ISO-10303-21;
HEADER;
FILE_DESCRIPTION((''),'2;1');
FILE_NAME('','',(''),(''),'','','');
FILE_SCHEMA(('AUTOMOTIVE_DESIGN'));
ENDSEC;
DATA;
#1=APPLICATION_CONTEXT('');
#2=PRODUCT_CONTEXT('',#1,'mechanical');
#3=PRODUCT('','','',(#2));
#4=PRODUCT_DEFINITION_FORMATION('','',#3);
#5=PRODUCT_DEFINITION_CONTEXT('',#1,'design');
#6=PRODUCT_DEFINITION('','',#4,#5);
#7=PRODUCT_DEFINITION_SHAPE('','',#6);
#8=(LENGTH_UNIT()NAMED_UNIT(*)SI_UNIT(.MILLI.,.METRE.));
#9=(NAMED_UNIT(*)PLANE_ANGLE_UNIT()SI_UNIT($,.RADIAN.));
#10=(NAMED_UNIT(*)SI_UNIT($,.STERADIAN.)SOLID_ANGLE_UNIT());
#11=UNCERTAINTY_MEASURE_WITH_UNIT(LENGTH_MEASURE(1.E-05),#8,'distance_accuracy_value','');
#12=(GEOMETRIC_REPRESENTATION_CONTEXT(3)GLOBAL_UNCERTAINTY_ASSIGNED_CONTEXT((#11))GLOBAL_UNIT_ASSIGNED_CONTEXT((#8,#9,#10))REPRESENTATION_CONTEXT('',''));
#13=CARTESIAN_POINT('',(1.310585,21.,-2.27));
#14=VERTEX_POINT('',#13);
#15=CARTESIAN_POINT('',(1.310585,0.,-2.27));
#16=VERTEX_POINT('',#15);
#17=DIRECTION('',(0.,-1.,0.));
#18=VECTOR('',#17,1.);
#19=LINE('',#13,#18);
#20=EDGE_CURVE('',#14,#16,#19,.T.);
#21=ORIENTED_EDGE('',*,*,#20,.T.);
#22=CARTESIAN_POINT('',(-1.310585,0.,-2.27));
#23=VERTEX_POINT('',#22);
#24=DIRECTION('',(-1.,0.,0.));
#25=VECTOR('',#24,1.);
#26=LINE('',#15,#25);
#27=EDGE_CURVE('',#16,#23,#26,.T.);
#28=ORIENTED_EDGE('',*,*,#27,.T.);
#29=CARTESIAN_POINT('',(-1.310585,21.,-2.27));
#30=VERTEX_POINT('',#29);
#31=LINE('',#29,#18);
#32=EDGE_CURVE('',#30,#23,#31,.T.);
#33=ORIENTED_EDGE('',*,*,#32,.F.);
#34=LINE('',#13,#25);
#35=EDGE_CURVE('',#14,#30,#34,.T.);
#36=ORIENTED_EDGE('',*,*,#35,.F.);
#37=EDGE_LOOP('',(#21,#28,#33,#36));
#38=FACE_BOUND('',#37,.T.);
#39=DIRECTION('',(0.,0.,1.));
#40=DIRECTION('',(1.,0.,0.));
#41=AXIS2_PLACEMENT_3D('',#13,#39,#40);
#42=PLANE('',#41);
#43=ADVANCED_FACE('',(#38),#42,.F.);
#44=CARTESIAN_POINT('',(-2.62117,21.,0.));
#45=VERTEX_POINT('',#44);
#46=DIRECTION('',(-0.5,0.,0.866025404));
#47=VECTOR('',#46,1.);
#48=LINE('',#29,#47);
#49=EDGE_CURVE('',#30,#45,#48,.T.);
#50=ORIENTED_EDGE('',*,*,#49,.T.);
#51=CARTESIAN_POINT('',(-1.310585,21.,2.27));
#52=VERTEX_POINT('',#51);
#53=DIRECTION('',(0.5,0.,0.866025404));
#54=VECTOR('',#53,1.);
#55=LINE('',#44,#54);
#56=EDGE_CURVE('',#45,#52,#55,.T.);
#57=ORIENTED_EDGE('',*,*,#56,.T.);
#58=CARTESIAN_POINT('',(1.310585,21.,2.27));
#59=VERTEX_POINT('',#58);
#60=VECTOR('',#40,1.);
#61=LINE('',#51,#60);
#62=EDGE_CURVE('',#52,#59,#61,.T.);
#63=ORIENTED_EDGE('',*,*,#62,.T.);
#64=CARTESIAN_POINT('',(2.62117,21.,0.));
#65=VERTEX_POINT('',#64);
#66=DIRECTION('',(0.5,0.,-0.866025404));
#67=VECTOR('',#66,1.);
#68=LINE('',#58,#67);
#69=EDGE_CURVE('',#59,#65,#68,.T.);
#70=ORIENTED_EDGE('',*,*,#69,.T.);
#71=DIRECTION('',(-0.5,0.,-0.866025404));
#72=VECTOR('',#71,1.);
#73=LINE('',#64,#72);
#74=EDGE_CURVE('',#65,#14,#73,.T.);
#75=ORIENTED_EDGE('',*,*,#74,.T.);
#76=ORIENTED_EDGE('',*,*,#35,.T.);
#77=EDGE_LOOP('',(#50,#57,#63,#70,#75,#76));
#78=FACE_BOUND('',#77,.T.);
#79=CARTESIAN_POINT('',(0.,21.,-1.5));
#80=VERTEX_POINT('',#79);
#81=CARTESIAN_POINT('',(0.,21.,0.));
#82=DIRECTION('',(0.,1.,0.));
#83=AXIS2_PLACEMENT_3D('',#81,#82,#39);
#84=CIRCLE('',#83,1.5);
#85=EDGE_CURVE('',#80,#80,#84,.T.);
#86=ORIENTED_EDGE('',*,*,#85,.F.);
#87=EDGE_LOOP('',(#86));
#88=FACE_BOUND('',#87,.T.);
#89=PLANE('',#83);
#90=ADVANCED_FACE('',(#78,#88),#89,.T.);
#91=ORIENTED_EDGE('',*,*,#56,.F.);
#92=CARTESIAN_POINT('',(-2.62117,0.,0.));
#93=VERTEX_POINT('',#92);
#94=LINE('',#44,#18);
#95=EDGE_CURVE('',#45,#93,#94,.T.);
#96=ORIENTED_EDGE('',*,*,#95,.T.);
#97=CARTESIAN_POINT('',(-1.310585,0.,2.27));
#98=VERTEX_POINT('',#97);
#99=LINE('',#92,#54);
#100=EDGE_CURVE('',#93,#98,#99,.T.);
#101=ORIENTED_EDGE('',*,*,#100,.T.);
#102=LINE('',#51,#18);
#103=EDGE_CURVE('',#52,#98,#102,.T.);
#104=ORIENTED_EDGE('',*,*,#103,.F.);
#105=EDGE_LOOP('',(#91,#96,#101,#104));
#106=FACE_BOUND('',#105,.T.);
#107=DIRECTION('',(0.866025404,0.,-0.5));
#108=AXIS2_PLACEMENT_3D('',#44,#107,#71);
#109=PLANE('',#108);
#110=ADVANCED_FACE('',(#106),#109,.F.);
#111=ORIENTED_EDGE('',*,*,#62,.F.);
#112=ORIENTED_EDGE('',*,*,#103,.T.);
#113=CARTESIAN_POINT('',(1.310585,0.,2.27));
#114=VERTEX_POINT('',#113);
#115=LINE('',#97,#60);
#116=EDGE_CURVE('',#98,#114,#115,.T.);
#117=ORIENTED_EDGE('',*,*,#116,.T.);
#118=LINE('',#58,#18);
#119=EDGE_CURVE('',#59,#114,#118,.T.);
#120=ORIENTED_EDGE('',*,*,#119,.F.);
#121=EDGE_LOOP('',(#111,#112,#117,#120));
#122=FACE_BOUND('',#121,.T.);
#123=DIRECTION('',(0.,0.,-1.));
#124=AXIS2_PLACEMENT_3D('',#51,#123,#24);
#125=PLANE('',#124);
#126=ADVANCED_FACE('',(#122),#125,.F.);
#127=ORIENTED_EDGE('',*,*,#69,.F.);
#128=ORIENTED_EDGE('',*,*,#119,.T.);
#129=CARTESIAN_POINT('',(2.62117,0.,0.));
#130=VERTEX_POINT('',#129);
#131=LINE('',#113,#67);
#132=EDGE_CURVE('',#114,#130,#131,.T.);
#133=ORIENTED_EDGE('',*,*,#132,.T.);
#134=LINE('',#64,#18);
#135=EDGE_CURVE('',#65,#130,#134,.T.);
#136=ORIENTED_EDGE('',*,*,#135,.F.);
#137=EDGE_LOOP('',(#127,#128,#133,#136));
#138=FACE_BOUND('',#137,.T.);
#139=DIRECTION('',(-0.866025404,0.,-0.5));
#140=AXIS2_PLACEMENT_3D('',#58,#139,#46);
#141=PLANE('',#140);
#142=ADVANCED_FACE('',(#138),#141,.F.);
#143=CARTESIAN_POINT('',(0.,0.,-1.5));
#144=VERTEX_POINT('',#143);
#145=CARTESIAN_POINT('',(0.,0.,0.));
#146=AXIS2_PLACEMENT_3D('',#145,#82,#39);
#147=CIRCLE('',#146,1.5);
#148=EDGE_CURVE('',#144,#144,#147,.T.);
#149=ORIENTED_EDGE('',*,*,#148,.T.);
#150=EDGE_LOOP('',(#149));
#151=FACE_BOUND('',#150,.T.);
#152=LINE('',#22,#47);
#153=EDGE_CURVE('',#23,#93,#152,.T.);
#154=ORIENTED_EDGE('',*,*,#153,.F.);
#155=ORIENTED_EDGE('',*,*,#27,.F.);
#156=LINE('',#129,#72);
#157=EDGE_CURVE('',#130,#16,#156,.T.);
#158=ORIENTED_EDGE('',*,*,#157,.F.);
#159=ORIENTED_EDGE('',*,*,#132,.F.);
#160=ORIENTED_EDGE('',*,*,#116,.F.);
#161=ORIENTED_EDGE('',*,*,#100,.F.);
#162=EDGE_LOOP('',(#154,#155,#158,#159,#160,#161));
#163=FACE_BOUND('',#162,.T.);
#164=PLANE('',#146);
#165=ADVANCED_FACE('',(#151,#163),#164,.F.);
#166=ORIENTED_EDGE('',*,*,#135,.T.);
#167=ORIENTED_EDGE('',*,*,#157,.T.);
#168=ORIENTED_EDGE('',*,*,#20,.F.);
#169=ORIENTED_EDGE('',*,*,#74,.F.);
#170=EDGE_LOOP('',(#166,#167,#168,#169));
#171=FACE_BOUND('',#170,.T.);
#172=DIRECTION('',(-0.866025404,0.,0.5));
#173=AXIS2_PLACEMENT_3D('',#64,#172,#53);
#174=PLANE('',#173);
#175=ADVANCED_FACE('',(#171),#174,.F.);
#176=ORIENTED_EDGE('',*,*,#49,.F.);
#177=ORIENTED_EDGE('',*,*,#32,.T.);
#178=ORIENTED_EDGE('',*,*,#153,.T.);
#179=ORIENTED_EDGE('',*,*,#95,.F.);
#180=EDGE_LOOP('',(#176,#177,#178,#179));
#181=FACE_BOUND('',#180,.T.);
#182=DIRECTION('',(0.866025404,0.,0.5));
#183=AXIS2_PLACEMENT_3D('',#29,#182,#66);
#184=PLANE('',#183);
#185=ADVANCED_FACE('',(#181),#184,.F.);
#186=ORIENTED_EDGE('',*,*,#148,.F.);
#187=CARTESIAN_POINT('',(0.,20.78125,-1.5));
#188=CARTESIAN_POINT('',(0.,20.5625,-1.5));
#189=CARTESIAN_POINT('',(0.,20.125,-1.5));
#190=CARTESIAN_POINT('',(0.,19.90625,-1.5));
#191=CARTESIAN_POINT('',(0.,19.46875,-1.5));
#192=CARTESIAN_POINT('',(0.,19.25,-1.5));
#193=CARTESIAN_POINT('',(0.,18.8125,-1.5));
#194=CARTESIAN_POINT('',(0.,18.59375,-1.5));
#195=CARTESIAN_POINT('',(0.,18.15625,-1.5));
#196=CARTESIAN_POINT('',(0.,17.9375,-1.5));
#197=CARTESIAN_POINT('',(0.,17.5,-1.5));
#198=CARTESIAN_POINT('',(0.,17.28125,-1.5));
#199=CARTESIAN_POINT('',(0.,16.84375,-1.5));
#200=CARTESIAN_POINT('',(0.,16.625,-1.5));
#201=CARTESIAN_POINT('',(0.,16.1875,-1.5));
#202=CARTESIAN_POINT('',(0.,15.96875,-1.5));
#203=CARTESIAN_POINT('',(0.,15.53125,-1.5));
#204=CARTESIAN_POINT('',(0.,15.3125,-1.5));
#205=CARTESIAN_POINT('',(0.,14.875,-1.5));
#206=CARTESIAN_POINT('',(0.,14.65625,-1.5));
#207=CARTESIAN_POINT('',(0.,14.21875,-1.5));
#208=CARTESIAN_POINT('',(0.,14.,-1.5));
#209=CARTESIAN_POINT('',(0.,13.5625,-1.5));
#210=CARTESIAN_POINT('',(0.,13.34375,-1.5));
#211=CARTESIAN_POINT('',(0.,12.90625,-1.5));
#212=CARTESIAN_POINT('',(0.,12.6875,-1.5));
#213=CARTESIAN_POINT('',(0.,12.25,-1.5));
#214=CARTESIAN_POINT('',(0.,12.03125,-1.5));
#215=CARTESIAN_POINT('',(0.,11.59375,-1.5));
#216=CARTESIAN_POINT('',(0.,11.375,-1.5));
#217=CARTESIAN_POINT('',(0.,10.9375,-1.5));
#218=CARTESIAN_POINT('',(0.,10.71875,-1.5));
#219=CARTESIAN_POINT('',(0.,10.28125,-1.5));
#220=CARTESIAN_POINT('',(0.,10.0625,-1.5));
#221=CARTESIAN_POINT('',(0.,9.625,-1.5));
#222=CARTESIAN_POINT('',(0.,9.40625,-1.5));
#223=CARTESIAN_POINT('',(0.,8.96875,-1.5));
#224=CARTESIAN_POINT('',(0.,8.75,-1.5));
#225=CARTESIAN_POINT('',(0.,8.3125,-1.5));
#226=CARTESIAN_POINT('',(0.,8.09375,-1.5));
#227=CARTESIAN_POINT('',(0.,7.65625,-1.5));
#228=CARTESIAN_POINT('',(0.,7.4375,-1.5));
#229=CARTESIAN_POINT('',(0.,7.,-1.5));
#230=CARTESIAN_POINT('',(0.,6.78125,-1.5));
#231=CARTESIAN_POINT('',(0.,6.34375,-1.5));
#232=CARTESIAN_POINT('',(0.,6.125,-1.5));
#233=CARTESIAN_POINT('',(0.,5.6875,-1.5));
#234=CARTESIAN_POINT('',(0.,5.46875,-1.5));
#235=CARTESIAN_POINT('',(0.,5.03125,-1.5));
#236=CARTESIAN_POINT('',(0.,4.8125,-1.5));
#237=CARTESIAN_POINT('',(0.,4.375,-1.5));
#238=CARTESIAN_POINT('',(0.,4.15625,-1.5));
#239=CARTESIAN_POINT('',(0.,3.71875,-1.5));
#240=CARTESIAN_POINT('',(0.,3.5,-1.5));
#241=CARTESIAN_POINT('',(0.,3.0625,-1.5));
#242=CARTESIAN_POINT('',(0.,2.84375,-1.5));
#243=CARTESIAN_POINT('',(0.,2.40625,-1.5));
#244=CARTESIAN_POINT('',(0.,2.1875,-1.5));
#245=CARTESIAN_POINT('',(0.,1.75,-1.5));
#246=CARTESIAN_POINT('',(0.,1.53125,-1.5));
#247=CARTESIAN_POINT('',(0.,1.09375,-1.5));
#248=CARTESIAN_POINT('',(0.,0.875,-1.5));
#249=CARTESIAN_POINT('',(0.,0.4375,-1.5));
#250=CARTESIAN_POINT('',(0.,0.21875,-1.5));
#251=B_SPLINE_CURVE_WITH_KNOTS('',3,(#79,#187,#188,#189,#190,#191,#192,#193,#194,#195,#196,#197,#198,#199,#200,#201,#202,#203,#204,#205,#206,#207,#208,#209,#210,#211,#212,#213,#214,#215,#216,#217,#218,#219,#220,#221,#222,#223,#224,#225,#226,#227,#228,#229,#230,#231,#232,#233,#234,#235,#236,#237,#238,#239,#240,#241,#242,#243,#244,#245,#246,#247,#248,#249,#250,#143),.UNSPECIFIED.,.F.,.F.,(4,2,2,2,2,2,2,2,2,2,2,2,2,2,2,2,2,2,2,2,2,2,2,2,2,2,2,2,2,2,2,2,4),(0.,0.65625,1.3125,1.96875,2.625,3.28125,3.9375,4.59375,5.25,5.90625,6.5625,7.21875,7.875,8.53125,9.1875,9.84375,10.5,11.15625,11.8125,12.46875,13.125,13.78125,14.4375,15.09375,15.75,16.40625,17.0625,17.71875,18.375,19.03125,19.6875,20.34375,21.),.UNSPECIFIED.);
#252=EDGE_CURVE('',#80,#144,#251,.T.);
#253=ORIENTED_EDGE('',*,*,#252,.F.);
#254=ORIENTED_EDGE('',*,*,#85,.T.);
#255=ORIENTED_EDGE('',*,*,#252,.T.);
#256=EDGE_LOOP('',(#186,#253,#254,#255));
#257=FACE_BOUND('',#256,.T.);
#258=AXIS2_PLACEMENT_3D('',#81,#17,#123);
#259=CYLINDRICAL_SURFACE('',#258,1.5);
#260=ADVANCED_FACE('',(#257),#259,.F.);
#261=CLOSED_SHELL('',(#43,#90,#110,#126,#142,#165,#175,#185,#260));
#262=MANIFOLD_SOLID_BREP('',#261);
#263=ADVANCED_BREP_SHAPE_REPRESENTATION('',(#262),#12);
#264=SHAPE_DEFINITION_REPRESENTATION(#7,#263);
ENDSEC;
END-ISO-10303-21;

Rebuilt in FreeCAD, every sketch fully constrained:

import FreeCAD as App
import Part
import Sketcher
from FreeCAD import Vector
Q = App.Units.Quantity

doc = App.newDocument("Part")
params = doc.addObject("Spreadsheet::Sheet", "Params")
for row, (alias, value) in enumerate([
    ("sketch1_diameter", "3 mm"),
    ("pad1_length", "21 mm"),
], start=1):
    params.set(f"A{row}", alias)
    params.set(f"B{row}", "=" + value)
    params.setAlias(f"B{row}", alias)

body = doc.addObject("PartDesign::Body", "Body")

# Sketch on XZ plane
sketch1 = doc.addObject("Sketcher::SketchObject", "Sketch")
body.addObject(sketch1)
sketch1.AttachmentSupport = (doc.XZ_Plane, [""])
sketch1.MapMode = "FlatFace"
sketch1.addGeometry(Part.LineSegment(Vector(2.62117, 0, 0), Vector(1.310585, -2.27, 0)), False)
sketch1.addGeometry(Part.LineSegment(Vector(1.310585, -2.27, 0), Vector(-1.310585, -2.27, 0)), False)
sketch1.addGeometry(Part.LineSegment(Vector(-1.310585, -2.27, 0), Vector(-2.62117, 0, 0)), False)
sketch1.addGeometry(Part.LineSegment(Vector(-2.62117, 0, 0), Vector(-1.310585, 2.27, 0)), False)
sketch1.addGeometry(Part.LineSegment(Vector(-1.310585, 2.27, 0), Vector(1.310585, 2.27, 0)), False)
sketch1.addGeometry(Part.LineSegment(Vector(1.310585, 2.27, 0), Vector(2.62117, 0, 0)), False)
sketch1.addGeometry(Part.Circle(Vector(0, 0, 0), Vector(0, 0, 1), 1.5), False)
sketch1.addConstraint(Sketcher.Constraint("Coincident", 0, 2, 1, 1))
sketch1.addConstraint(Sketcher.Constraint("Coincident", 1, 2, 2, 1))
sketch1.addConstraint(Sketcher.Constraint("Coincident", 2, 2, 3, 1))
sketch1.addConstraint(Sketcher.Constraint("Coincident", 3, 2, 4, 1))
sketch1.addConstraint(Sketcher.Constraint("Coincident", 4, 2, 5, 1))
sketch1.addConstraint(Sketcher.Constraint("Coincident", 5, 2, 0, 1))
sketch1.addConstraint(Sketcher.Constraint("Horizontal", 1))
sketch1.addConstraint(Sketcher.Constraint("Horizontal", 4))
sketch1.addConstraint(Sketcher.Constraint("Coincident", 6, 3, -1, 1))
sketch1.addConstraint(Sketcher.Constraint("Symmetric", 0, 2, 3, 2, -1, 1))
sketch1.addConstraint(Sketcher.Constraint("Symmetric", 2, 2, 5, 2, -1, 1))
sketch1.addConstraint(Sketcher.Constraint("PointOnObject", 2, 2, -1))
sketch1.addConstraint(Sketcher.Constraint("Parallel", 2, 5))
sketch1.addConstraint(Sketcher.Constraint("Vertical", 1, 2, 3, 2))
sketch1.addConstraint(Sketcher.Constraint("Diameter", 6, 3.0))
sketch1.addConstraint(Sketcher.Constraint("Angle", 0, Q("-120 deg")))
sketch1.addConstraint(Sketcher.Constraint("DistanceY", 0, 2, -1, 1, 2.27))
sketch1.addConstraint(Sketcher.Constraint("DistanceX", 1, 2, 1, 1, 2.62117))
sketch1.setExpression("Constraints[14]", "Params.sketch1_diameter")
pad1 = doc.addObject("PartDesign::Pad", "Pad")
body.addObject(pad1)
pad1.Profile = sketch1
pad1.setExpression("Length", "Params.pad1_length")
pad1.Reversed = True

doc.recompute()
